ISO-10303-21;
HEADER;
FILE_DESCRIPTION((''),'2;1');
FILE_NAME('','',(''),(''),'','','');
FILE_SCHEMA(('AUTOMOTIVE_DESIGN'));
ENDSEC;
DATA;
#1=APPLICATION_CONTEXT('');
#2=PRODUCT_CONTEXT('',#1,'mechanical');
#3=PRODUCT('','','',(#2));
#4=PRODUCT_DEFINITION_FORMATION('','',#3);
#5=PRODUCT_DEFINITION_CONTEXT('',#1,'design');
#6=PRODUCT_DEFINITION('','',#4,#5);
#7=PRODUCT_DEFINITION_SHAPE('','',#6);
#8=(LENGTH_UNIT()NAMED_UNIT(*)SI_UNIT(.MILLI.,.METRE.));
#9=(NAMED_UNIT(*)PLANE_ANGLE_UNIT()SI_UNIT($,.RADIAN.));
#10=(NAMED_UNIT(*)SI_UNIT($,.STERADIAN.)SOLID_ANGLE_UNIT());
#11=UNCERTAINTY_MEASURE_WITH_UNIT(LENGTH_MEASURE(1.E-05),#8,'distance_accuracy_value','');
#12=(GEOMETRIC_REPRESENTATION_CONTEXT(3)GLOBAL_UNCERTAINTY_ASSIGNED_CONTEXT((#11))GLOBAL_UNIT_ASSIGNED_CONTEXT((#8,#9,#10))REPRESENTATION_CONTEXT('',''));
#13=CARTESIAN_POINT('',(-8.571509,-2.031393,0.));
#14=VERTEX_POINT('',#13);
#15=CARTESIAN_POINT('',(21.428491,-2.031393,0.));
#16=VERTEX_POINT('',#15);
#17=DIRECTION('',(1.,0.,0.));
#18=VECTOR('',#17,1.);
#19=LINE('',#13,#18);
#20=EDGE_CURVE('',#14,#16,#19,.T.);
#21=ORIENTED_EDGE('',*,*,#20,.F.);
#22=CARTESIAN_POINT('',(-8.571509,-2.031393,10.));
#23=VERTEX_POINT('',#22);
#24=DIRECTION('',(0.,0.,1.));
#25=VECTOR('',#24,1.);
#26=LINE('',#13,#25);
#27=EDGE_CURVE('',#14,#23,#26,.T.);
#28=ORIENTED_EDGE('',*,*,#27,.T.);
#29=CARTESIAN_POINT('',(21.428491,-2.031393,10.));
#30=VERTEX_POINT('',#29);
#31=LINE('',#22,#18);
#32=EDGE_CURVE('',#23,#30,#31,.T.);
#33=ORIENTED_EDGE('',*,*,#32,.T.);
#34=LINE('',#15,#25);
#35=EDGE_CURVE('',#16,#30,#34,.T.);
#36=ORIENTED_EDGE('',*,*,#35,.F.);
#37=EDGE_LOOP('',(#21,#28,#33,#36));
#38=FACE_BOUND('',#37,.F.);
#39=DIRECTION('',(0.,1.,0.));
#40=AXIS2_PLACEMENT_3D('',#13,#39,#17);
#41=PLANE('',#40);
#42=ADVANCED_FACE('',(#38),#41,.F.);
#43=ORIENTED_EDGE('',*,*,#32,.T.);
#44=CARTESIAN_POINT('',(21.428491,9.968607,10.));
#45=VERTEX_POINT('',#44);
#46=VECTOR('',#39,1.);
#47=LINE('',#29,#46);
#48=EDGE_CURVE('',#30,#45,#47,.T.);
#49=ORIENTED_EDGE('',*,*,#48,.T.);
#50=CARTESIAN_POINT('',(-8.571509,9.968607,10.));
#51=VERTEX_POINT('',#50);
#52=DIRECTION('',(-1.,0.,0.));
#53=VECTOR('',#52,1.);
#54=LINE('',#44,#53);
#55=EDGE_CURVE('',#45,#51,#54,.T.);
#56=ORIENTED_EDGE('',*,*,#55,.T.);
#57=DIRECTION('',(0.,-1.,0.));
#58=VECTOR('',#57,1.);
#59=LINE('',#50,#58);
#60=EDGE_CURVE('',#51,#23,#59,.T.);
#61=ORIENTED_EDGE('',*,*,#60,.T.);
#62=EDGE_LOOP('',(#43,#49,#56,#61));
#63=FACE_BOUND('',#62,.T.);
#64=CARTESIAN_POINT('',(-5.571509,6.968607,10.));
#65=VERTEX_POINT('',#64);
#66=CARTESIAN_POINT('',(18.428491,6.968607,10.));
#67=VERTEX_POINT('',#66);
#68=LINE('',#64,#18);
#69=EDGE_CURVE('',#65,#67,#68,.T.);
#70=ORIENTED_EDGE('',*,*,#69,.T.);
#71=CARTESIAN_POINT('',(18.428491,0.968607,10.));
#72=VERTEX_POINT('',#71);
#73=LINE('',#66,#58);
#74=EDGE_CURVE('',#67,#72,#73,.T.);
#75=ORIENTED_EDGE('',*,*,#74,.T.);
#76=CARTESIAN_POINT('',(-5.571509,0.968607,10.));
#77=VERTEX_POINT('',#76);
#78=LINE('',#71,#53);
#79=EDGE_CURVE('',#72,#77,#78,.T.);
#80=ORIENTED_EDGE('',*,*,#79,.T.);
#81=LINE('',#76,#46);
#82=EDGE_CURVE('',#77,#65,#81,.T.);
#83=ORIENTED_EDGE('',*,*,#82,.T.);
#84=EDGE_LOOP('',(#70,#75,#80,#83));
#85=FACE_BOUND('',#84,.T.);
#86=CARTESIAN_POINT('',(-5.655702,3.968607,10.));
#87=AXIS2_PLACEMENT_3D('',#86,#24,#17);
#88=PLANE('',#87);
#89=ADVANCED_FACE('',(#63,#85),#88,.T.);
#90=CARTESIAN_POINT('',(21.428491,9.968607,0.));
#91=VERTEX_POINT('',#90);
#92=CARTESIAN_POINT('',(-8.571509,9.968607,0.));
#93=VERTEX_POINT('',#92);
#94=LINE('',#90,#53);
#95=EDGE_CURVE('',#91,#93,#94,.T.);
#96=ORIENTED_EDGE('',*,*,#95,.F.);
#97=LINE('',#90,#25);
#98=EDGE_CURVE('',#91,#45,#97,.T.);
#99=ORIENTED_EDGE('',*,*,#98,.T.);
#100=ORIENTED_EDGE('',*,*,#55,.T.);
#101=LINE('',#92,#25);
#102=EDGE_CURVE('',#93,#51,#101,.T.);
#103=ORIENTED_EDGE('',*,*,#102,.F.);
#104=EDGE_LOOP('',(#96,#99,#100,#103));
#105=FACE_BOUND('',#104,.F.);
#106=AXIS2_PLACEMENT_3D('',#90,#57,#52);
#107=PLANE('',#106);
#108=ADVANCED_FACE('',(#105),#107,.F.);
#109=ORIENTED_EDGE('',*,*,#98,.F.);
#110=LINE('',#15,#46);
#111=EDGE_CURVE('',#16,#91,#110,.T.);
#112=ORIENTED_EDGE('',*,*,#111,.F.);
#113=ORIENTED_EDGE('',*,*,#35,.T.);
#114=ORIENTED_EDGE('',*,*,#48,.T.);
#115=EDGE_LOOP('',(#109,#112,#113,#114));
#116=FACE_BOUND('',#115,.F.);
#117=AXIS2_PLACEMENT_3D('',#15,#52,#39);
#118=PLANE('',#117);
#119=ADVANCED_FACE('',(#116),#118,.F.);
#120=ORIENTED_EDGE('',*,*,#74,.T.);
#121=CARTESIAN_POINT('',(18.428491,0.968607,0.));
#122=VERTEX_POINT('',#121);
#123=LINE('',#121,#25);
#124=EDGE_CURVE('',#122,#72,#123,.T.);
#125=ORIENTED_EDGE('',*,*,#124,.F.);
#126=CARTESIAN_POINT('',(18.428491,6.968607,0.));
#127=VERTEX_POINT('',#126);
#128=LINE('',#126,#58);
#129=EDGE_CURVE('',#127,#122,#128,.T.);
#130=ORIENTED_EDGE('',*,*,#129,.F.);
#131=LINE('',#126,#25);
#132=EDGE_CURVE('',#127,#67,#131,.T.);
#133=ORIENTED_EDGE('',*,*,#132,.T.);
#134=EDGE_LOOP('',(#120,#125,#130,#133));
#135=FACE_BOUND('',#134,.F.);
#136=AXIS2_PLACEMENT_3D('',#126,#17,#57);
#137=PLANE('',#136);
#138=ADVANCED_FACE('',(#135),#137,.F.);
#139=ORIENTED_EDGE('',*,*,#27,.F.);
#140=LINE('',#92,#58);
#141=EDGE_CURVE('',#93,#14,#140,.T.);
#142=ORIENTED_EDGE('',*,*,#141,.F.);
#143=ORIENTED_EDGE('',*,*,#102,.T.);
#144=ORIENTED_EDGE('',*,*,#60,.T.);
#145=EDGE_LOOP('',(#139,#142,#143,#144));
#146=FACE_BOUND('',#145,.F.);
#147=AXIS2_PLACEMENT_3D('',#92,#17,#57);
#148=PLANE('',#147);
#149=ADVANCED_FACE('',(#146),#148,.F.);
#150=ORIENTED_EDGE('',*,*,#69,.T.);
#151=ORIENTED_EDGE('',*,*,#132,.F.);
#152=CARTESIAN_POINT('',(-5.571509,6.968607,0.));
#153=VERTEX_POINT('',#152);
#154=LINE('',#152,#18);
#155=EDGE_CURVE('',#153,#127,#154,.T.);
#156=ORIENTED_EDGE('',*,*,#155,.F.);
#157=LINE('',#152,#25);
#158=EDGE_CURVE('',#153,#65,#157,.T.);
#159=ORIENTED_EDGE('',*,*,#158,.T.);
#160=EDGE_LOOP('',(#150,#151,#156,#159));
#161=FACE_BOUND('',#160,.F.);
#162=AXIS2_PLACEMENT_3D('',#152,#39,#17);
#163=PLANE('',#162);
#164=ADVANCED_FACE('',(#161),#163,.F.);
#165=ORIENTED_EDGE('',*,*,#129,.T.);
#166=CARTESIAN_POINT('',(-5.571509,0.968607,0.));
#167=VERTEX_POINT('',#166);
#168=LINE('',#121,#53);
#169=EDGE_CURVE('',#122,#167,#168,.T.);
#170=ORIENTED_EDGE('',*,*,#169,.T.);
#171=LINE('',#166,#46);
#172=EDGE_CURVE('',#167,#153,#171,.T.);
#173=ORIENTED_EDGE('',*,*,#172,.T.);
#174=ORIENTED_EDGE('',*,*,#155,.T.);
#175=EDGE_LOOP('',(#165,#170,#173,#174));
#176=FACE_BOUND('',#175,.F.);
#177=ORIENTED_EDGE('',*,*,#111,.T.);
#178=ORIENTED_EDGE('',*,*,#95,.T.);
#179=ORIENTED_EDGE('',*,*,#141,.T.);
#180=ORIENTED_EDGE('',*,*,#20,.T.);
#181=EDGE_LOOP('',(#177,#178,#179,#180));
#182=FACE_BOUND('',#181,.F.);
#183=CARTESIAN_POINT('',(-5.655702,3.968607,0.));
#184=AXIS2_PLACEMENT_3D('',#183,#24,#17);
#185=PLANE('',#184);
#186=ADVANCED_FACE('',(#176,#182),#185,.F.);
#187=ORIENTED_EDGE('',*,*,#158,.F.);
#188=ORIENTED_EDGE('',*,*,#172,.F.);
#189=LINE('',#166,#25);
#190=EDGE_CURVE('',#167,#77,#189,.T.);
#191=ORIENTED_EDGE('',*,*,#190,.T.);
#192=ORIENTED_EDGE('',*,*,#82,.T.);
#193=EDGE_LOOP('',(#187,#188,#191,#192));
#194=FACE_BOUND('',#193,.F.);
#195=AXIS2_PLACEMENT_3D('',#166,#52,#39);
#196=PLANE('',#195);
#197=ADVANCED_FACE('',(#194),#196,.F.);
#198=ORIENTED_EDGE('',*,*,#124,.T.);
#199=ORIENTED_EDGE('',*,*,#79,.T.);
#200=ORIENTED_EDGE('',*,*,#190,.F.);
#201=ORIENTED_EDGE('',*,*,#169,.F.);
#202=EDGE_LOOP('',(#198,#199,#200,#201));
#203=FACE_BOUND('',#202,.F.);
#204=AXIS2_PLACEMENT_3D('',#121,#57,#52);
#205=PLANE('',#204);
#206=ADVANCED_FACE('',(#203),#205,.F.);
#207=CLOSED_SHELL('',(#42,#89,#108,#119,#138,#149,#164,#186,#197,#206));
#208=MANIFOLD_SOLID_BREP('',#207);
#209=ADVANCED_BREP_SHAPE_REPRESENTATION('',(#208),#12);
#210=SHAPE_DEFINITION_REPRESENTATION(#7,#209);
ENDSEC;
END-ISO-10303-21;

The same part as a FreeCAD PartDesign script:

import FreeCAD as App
import Part
import Sketcher

V = App.Vector
Q = App.Units.Quantity

doc = App.newDocument("Part")
body = doc.addObject("PartDesign::Body", "Body")

# Sketch on XY plane
sketch1 = doc.addObject("Sketcher::SketchObject", "Sketch")
body.addObject(sketch1)
sketch1.AttachmentSupport = (doc.XY_Plane, [""])
sketch1.MapMode = "FlatFace"
sketch1.addGeometry([
    Part.LineSegment(V(-9, 10, 0), V(-9, -2, 0)),  # 0
    Part.LineSegment(V(-9, -2, 0), V(21, -2, 0)),  # 1
    Part.LineSegment(V(21, -2, 0), V(21, 10, 0)),  # 2
    Part.LineSegment(V(21, 10, 0), V(-9, 10, 0)),  # 3
    Part.LineSegment(V(-6, 1, 0), V(-6, 7, 0)),  # 4
    Part.LineSegment(V(-6, 7, 0), V(18, 7, 0)),  # 5
    Part.LineSegment(V(18, 7, 0), V(18, 1, 0)),  # 6
    Part.LineSegment(V(18, 1, 0), V(-6, 1, 0)),  # 7
], False)
sketch1.addConstraint([
    Sketcher.Constraint("Coincident", 0, 2, 1, 1),
    Sketcher.Constraint("Coincident", 1, 2, 2, 1),
    Sketcher.Constraint("Coincident", 2, 2, 3, 1),
    Sketcher.Constraint("Coincident", 3, 2, 0, 1),
    Sketcher.Constraint("Coincident", 4, 2, 5, 1),
    Sketcher.Constraint("Coincident", 5, 2, 6, 1),
    Sketcher.Constraint("Coincident", 6, 2, 7, 1),
    Sketcher.Constraint("Coincident", 7, 2, 4, 1),
    Sketcher.Constraint("Vertical", 0),
    Sketcher.Constraint("Horizontal", 1),
    Sketcher.Constraint("Vertical", 2),
    Sketcher.Constraint("Horizontal", 3),
    Sketcher.Constraint("Vertical", 4),
    Sketcher.Constraint("Horizontal", 5),
    Sketcher.Constraint("Vertical", 6),
    Sketcher.Constraint("Horizontal", 7),
    Sketcher.Constraint("DistanceX", 1, 1, 1, 2, Q("30 mm")),
    Sketcher.Constraint("DistanceX", 5, 1, 5, 2, Q("24 mm")),
    Sketcher.Constraint("DistanceY", 0, 2, 0, 1, Q("12 mm")),
    Sketcher.Constraint("DistanceY", 4, 1, 4, 2, Q("6 mm")),
    Sketcher.Constraint("DistanceX", 3, 2, 4, 2, Q("3 mm")),
    Sketcher.Constraint("DistanceY", 4, 2, 3, 2, Q("3 mm")),
    Sketcher.Constraint("DistanceX", 0, 2, -1, 1, Q("8.571509 mm")),
    Sketcher.Constraint("DistanceY", 0, 2, -1, 1, Q("2.031393 mm")),
])
pad1 = doc.addObject("PartDesign::Pad", "Pad")
body.addObject(pad1)
pad1.Profile = sketch1
pad1.Length = 10

doc.recompute()
